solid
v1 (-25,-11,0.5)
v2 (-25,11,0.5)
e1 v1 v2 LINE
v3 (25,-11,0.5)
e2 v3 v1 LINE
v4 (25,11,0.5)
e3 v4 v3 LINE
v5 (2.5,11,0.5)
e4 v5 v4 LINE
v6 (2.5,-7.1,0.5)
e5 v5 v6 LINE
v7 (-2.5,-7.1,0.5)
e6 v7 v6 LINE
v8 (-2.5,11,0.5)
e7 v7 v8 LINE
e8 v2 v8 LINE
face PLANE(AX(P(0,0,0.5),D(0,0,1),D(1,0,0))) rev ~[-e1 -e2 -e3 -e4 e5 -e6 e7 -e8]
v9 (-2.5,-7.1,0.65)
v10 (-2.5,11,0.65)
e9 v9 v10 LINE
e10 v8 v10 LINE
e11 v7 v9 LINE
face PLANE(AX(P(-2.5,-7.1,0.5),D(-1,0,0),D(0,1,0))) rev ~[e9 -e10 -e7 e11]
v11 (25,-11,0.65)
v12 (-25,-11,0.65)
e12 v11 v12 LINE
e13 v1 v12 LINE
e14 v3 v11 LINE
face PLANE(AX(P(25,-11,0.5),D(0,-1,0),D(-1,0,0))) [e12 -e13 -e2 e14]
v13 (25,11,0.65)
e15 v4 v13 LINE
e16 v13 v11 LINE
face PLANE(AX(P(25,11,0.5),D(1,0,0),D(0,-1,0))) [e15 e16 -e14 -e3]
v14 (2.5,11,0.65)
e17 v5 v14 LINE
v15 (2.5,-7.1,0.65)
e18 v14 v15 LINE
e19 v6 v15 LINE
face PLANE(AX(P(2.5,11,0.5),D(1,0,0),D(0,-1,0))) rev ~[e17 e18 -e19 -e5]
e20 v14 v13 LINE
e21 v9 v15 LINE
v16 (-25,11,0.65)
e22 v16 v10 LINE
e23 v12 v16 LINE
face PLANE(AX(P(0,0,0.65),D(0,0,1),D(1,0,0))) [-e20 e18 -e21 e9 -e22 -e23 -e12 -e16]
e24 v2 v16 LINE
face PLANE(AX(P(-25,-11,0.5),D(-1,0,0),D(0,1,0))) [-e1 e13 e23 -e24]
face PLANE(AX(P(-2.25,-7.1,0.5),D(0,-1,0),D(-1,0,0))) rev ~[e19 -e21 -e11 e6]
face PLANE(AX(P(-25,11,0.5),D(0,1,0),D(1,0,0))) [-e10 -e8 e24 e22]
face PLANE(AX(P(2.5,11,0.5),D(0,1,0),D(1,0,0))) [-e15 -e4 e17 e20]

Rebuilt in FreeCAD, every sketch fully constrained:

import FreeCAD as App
import Part
import Sketcher
Q = App.Units.Quantity

doc = App.newDocument("Part")
body = doc.addObject("PartDesign::Body", "Body")

# Sketch on XY plane
sketch1 = body.newObject("Sketcher::SketchObject", "Sketch")
sketch1.AttachmentSupport = (doc.getObject("XY_Plane"), [""])
sketch1.MapMode = "FlatFace"
sketch1.AttachmentOffset = App.Placement(App.Vector(0, 0, 0.5), App.Rotation())
sketch1.addGeometry([
    Part.LineSegment(App.Vector(25, 11, 0), App.Vector(2, 11, 0)),  # 0
    Part.LineSegment(App.Vector(2, 11, 0), App.Vector(2, -7, 0)),  # 1
    Part.LineSegment(App.Vector(2, -7, 0), App.Vector(-2, -7, 0)),  # 2
    Part.LineSegment(App.Vector(-2, -7, 0), App.Vector(-2, 11, 0)),  # 3
    Part.LineSegment(App.Vector(-2, 11, 0), App.Vector(-25, 11, 0)),  # 4
    Part.LineSegment(App.Vector(-25, 11, 0), App.Vector(-25, -11, 0)),  # 5
    Part.LineSegment(App.Vector(-25, -11, 0), App.Vector(25, -11, 0)),  # 6
    Part.LineSegment(App.Vector(25, -11, 0), App.Vector(25, 11, 0)),  # 7
], False)
sketch1.addConstraint([
    Sketcher.Constraint("Coincident", 0, 2, 1, 1),
    Sketcher.Constraint("Coincident", 1, 2, 2, 1),
    Sketcher.Constraint("Coincident", 2, 2, 3, 1),
    Sketcher.Constraint("Coincident", 3, 2, 4, 1),
    Sketcher.Constraint("Coincident", 4, 2, 5, 1),
    Sketcher.Constraint("Coincident", 5, 2, 6, 1),
    Sketcher.Constraint("Coincident", 6, 2, 7, 1),
    Sketcher.Constraint("Coincident", 7, 2, 0, 1),
    Sketcher.Constraint("Horizontal", 0),
    Sketcher.Constraint("Vertical", 1),
    Sketcher.Constraint("Horizontal", 2),
    Sketcher.Constraint("Vertical", 3),
    Sketcher.Constraint("Horizontal", 4),
    Sketcher.Constraint("Vertical", 5),
    Sketcher.Constraint("Horizontal", 6),
    Sketcher.Constraint("Vertical", 7),
    Sketcher.Constraint("Symmetric", 4, 2, 6, 2, -1, 1),
    Sketcher.Constraint("Symmetric", 0, 2, 3, 2, -2),
    Sketcher.Constraint("DistanceX", 6, 1, 6, 2, Q("50 mm")),
    Sketcher.Constraint("DistanceY", 5, 2, 5, 1, Q("22 mm")),
    Sketcher.Constraint("DistanceX", 2, 2, 2, 1, Q("5 mm")),
    Sketcher.Constraint("DistanceY", 1, 2, 1, 1, Q("18.1 mm")),
])
pad1 = body.newObject("PartDesign::Pad", "Pad")
pad1.Profile = sketch1
pad1.Length = 0.15

doc.recompute()
